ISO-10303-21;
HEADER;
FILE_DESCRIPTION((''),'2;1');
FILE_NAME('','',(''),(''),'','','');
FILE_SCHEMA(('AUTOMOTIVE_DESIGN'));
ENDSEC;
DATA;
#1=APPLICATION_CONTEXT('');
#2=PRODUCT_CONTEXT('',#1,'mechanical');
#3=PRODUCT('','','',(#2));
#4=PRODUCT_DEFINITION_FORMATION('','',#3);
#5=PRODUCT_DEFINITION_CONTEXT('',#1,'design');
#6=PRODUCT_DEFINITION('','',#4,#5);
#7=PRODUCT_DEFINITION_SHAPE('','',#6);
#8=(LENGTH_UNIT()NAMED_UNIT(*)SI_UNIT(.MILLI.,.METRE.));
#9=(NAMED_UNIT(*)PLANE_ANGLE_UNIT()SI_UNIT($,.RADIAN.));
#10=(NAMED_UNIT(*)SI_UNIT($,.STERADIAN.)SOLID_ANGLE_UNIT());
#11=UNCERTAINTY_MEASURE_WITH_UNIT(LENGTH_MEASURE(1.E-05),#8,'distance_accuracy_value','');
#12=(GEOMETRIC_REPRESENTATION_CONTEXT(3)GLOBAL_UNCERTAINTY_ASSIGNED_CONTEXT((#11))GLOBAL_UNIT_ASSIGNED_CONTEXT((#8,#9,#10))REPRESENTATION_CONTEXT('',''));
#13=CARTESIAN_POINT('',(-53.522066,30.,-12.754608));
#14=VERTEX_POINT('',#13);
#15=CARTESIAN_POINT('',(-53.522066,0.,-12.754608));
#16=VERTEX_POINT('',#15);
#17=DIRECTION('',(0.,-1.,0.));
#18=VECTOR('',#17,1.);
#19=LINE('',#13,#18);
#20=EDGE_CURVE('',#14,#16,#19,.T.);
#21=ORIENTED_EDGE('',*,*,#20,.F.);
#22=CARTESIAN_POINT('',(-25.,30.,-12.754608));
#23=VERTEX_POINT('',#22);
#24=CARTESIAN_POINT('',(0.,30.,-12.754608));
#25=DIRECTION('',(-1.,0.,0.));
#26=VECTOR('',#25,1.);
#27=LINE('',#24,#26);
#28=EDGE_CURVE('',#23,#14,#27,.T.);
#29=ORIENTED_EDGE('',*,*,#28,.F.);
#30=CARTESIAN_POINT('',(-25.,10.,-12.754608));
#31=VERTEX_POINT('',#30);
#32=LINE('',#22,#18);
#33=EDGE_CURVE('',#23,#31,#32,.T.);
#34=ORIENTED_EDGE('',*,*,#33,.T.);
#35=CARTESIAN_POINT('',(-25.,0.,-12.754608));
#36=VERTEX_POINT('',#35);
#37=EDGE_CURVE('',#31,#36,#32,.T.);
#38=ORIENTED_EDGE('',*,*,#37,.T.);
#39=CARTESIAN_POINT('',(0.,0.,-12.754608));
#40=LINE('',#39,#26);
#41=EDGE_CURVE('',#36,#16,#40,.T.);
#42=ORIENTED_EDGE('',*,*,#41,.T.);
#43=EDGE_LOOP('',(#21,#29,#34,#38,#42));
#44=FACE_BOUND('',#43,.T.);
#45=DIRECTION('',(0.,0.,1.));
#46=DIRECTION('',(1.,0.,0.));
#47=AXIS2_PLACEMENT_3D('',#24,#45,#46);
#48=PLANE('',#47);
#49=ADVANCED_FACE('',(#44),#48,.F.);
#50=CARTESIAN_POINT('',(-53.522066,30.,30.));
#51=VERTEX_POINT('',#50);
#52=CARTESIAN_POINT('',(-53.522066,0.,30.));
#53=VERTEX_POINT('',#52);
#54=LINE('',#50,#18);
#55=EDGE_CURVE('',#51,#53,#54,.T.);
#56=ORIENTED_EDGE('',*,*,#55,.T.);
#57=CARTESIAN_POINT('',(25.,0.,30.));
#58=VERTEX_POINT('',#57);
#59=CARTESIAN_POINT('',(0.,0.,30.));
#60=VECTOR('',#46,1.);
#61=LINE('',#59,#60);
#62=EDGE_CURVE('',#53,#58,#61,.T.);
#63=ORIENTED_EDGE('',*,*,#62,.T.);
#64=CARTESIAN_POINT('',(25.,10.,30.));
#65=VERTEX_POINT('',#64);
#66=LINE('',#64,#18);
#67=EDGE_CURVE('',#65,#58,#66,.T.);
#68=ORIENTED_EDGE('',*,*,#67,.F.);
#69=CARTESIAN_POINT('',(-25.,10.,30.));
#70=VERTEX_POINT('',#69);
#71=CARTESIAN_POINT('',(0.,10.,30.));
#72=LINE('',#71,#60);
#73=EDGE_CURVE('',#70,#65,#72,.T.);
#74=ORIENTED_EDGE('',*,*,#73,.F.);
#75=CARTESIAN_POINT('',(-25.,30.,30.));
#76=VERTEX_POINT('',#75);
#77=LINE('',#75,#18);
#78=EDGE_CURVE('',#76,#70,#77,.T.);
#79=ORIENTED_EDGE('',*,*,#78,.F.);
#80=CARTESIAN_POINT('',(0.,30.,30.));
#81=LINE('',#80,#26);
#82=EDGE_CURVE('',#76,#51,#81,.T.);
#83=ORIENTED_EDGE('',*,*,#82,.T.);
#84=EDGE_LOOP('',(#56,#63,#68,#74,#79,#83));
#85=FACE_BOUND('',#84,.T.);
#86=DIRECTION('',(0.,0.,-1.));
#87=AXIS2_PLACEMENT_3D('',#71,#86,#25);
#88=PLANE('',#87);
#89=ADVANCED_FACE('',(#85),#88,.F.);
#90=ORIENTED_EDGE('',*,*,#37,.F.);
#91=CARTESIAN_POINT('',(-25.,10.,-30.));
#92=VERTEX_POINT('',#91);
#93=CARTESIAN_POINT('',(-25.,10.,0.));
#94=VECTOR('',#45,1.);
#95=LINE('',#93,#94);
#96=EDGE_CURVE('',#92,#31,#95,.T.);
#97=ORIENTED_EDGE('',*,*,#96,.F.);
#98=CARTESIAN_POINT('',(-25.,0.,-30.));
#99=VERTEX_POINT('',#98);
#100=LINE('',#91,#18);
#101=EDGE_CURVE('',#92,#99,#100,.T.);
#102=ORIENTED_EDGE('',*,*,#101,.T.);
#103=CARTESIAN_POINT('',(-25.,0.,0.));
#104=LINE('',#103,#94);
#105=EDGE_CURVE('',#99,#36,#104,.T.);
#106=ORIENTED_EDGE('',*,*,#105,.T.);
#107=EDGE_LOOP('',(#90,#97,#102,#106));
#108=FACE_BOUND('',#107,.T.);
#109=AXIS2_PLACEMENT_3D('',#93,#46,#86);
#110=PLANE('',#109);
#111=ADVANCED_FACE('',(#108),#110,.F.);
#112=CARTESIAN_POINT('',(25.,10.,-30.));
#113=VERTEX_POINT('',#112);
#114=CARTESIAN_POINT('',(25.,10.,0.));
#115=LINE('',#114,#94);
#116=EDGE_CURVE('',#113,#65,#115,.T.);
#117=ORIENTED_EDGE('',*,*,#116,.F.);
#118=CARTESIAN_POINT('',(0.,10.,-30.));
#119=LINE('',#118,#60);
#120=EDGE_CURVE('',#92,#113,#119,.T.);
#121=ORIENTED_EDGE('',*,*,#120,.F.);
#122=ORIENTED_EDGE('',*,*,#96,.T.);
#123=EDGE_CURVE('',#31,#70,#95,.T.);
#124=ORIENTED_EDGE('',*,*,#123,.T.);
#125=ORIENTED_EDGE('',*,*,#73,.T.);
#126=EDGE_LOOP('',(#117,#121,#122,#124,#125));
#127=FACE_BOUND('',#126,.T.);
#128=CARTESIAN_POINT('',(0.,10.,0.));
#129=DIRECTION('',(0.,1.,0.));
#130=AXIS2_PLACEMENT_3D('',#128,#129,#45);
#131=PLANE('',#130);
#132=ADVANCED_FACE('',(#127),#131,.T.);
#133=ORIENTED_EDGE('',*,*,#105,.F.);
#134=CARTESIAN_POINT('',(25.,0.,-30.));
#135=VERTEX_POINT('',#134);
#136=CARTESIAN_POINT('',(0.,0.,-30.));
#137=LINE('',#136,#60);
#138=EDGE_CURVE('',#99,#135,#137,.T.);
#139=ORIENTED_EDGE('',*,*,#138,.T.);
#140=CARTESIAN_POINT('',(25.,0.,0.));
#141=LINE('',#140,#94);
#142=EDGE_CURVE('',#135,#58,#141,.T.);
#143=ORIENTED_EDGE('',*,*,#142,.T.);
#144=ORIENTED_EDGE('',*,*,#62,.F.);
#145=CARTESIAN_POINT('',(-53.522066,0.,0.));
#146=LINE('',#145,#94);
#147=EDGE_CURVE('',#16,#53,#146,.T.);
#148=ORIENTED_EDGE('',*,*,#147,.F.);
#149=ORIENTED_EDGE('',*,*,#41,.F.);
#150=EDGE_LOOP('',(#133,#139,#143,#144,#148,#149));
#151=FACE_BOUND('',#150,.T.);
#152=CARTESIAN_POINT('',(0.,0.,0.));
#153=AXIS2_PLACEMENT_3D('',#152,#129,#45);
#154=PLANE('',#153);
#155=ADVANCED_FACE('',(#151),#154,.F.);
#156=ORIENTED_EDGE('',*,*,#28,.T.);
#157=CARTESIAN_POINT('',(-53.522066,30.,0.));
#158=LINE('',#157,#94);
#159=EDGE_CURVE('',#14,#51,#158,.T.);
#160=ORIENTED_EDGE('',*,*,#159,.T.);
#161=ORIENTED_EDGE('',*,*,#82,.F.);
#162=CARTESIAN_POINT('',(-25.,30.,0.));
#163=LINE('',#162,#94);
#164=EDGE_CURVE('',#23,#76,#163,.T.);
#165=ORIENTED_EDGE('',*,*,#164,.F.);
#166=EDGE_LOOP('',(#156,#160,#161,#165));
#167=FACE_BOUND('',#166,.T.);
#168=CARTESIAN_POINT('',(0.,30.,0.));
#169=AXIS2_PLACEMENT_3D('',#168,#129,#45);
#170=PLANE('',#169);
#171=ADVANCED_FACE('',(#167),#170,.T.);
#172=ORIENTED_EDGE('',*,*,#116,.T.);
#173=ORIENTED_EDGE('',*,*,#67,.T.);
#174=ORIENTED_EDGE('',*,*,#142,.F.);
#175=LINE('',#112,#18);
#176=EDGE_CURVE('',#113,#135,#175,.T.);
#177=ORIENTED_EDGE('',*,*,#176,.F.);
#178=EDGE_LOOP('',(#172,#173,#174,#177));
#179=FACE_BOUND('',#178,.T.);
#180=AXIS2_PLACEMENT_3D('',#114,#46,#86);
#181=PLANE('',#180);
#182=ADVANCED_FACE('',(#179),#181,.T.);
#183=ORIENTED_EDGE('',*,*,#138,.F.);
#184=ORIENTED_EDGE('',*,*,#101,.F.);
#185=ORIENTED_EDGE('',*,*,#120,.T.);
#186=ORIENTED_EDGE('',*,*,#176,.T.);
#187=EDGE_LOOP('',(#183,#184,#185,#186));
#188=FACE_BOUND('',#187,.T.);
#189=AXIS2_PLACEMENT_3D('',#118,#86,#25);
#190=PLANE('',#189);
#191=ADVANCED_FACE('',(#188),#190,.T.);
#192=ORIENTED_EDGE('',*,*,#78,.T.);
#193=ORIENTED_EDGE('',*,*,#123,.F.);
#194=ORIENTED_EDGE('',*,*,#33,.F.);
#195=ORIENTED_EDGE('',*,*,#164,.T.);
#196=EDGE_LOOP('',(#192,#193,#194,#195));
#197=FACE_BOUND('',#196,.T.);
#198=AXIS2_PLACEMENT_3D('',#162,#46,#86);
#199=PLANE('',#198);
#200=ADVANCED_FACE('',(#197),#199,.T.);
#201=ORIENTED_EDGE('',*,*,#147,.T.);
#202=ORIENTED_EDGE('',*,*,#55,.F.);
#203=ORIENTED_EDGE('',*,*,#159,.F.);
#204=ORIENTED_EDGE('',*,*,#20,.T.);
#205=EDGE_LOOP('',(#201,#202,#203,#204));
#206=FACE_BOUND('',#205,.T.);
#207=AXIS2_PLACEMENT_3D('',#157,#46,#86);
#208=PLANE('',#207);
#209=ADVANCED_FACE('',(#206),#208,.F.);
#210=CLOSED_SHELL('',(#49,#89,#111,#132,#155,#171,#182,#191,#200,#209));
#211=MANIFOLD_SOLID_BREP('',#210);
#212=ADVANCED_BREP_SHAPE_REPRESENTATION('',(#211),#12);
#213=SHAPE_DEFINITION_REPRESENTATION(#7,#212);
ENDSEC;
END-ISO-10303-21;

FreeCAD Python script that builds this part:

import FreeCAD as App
import Part
import Sketcher


def add_polygon(sketch, points):
    """Adds a closed chain of lines whose ends are joined by coincident constraints."""
    first, n = sketch.GeometryCount, len(points)
    for a, b in zip(points, points[1:] + points[:1]):
        sketch.addGeometry(Part.LineSegment(App.Vector(*a, 0), App.Vector(*b, 0)), False)
    for i in range(n):
        sketch.addConstraint(Sketcher.Constraint("Coincident", first + i, 2, first + (i + 1) % n, 1))

doc = App.newDocument("Part")
body = doc.addObject("PartDesign::Body", "Body")

sketch1 = body.newObject("Sketcher::SketchObject", "Sketch")
sketch1.AttachmentSupport = (doc.getObject("XZ_Plane"), [""])
sketch1.MapMode = "FlatFace"
add_polygon(sketch1, [(-25, -30), (-25, 30), (25, 30), (25, -30)])
sketch1.addConstraint([
    Sketcher.Constraint("Vertical", 0),
    Sketcher.Constraint("Horizontal", 1),
    Sketcher.Constraint("Vertical", 2),
    Sketcher.Constraint("Horizontal", 3),
    Sketcher.Constraint("Symmetric", 0, 2, 2, 2, -1, 1),
    Sketcher.Constraint("DistanceX", 1, 1, 1, 2, 50.0),
    Sketcher.Constraint("DistanceY", 0, 1, 0, 2, 60.0),
])
pad1 = body.newObject("PartDesign::Pad", "Pad")
pad1.Profile = sketch1
pad1.Length = 10
pad1.Reversed = True

sketch2 = body.newObject("Sketcher::SketchObject", "Sketch001")
sketch2.AttachmentSupport = (doc.getObject("XZ_Plane"), [""])
sketch2.MapMode = "FlatFace"
add_polygon(sketch2, [(-54, -13), (-54, 30), (-25, 30), (-25, -13)])
sketch2.addConstraint([
    Sketcher.Constraint("Vertical", 0),
    Sketcher.Constraint("Horizontal", 1),
    Sketcher.Constraint("Vertical", 2),
    Sketcher.Constraint("Horizontal", 3),
    Sketcher.Constraint("DistanceY", -1, 1, 0, 2, 30.0),
    Sketcher.Constraint("DistanceX", 1, 2, -1, 1, 25.0),
    Sketcher.Constraint("DistanceY", 0, 1, 0, 2, 42.754608),
    Sketcher.Constraint("DistanceX", 1, 1, 1, 2, 28.522066),
])
pad2 = body.newObject("PartDesign::Pad", "Pad001")
pad2.Profile = sketch2
pad2.Length = 30
pad2.Reversed = True

doc.recompute()
